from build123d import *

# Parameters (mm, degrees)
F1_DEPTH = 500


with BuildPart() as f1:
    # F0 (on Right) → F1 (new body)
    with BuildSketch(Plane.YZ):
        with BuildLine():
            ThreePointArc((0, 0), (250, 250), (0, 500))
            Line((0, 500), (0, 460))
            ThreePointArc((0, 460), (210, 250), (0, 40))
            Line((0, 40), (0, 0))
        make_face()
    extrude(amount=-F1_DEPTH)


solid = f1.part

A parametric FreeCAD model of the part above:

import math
import FreeCAD as App
import Part
import Sketcher

V = App.Vector

doc = App.newDocument("Part")
params = doc.addObject("Spreadsheet::Sheet", "Params")
for row, (alias, value) in enumerate([
    ("sketch1_radius", "250 mm"),
    ("sketch1_radius2", "210 mm"),
    ("pad1_length", "500 mm"),
], start=1):
    params.set(f"A{row}", alias)
    params.set(f"B{row}", "=" + value)
    params.setAlias(f"B{row}", alias)

body = doc.addObject("PartDesign::Body", "Body")

sketch1 = body.newObject("Sketcher::SketchObject", "Sketch")
sketch1.AttachmentSupport = (doc.getObject("YZ_Plane"), [""])
sketch1.MapMode = "FlatFace"
sketch1.addGeometry(Part.ArcOfCircle(Part.Circle(V(0, 250, 0), V(0, 0, 1), 250), math.radians(-90), math.radians(90)), False)
sketch1.addGeometry(Part.LineSegment(V(0, 500, 0), V(0, 460, 0)), False)
sketch1.addGeometry(Part.ArcOfCircle(Part.Circle(V(0, 250, 0), V(0, 0, 1), 210), math.radians(-90), math.radians(90)), False)
sketch1.addGeometry(Part.LineSegment(V(0, 40, 0), V(0, 0, 0)), False)
sketch1.addConstraint(Sketcher.Constraint("Coincident", 0, 2, 1, 1))
sketch1.addConstraint(Sketcher.Constraint("Coincident", 1, 2, 2, 2))
sketch1.addConstraint(Sketcher.Constraint("Coincident", 2, 1, 3, 1))
sketch1.addConstraint(Sketcher.Constraint("Coincident", 3, 2, 0, 1))
sketch1.addConstraint(Sketcher.Constraint("Vertical", 1))
sketch1.addConstraint(Sketcher.Constraint("Vertical", 3))
sketch1.addConstraint(Sketcher.Constraint("Coincident", 3, 2, -1, 1))
sketch1.addConstraint(Sketcher.Constraint("Coincident", 2, 3, 0, 3))
sketch1.addConstraint(Sketcher.Constraint("PointOnObject", 0, 3, -2))
sketch1.addConstraint(Sketcher.Constraint("PointOnObject", 0, 2, -2))
sketch1.addConstraint(Sketcher.Constraint("Radius", 0, 250.0))
sketch1.addConstraint(Sketcher.Constraint("Radius", 2, 210.0))
sketch1.setExpression("Constraints[10]", "Params.sketch1_radius")
sketch1.setExpression("Constraints[11]", "Params.sketch1_radius2")
pad1 = body.newObject("PartDesign::Pad", "Pad")
pad1.Profile = sketch1
pad1.setExpression("Length", "Params.pad1_length")
pad1.Reversed = True

doc.recompute()
